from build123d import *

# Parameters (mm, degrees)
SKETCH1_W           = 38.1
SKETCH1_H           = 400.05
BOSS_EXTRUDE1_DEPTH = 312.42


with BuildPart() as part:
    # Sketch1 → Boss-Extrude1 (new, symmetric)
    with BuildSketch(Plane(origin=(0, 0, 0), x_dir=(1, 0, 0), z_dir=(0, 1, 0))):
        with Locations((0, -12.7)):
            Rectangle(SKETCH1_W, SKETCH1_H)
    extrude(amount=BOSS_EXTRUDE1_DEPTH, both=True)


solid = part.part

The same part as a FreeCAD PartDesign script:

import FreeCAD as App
import Part
import Sketcher
from FreeCAD import Vector
Q = App.Units.Quantity


def add_polygon(sketch, points):
    """Adds a closed chain of lines whose ends are joined by coincident constraints."""
    first, n = sketch.GeometryCount, len(points)
    for a, b in zip(points, points[1:] + points[:1]):
        sketch.addGeometry(Part.LineSegment(App.Vector(*a, 0), App.Vector(*b, 0)), False)
    for i in range(n):
        sketch.addConstraint(Sketcher.Constraint("Coincident", first + i, 2, first + (i + 1) % n, 1))

doc = App.newDocument("Part")
body = doc.addObject("PartDesign::Body", "Body")

# Sketch on XZ plane
sketch1 = body.newObject("Sketcher::SketchObject", "Sketch")
sketch1.AttachmentSupport = (doc.getObject("XZ_Plane"), [""])
sketch1.MapMode = "FlatFace"
add_polygon(sketch1, [(-19, -187), (-19, 213), (19, 213), (19, -187)])  # lines 0-3
sketch1.addConstraint(Sketcher.Constraint("Vertical", 0))
sketch1.addConstraint(Sketcher.Constraint("Horizontal", 1))
sketch1.addConstraint(Sketcher.Constraint("Vertical", 2))
sketch1.addConstraint(Sketcher.Constraint("Horizontal", 3))
sketch1.addConstraint(Sketcher.Constraint("DistanceX", 1, 1, 1, 2, Q("1.5 in")))
sketch1.addConstraint(Sketcher.Constraint("DistanceY", 0, 1, 0, 2, Q("15.75 in")))
sketch1.addConstraint(Sketcher.Constraint("DistanceX", 0, 2, -1, 1, Q("0.75 in")))
sketch1.addConstraint(Sketcher.Constraint("DistanceY", -1, 1, 0, 2, Q("8.375 in")))
pad1 = body.newObject("PartDesign::Pad", "Pad")
pad1.Profile = sketch1
pad1.Length = Q("24.6 in")
pad1.Midplane = True

doc.recompute()
